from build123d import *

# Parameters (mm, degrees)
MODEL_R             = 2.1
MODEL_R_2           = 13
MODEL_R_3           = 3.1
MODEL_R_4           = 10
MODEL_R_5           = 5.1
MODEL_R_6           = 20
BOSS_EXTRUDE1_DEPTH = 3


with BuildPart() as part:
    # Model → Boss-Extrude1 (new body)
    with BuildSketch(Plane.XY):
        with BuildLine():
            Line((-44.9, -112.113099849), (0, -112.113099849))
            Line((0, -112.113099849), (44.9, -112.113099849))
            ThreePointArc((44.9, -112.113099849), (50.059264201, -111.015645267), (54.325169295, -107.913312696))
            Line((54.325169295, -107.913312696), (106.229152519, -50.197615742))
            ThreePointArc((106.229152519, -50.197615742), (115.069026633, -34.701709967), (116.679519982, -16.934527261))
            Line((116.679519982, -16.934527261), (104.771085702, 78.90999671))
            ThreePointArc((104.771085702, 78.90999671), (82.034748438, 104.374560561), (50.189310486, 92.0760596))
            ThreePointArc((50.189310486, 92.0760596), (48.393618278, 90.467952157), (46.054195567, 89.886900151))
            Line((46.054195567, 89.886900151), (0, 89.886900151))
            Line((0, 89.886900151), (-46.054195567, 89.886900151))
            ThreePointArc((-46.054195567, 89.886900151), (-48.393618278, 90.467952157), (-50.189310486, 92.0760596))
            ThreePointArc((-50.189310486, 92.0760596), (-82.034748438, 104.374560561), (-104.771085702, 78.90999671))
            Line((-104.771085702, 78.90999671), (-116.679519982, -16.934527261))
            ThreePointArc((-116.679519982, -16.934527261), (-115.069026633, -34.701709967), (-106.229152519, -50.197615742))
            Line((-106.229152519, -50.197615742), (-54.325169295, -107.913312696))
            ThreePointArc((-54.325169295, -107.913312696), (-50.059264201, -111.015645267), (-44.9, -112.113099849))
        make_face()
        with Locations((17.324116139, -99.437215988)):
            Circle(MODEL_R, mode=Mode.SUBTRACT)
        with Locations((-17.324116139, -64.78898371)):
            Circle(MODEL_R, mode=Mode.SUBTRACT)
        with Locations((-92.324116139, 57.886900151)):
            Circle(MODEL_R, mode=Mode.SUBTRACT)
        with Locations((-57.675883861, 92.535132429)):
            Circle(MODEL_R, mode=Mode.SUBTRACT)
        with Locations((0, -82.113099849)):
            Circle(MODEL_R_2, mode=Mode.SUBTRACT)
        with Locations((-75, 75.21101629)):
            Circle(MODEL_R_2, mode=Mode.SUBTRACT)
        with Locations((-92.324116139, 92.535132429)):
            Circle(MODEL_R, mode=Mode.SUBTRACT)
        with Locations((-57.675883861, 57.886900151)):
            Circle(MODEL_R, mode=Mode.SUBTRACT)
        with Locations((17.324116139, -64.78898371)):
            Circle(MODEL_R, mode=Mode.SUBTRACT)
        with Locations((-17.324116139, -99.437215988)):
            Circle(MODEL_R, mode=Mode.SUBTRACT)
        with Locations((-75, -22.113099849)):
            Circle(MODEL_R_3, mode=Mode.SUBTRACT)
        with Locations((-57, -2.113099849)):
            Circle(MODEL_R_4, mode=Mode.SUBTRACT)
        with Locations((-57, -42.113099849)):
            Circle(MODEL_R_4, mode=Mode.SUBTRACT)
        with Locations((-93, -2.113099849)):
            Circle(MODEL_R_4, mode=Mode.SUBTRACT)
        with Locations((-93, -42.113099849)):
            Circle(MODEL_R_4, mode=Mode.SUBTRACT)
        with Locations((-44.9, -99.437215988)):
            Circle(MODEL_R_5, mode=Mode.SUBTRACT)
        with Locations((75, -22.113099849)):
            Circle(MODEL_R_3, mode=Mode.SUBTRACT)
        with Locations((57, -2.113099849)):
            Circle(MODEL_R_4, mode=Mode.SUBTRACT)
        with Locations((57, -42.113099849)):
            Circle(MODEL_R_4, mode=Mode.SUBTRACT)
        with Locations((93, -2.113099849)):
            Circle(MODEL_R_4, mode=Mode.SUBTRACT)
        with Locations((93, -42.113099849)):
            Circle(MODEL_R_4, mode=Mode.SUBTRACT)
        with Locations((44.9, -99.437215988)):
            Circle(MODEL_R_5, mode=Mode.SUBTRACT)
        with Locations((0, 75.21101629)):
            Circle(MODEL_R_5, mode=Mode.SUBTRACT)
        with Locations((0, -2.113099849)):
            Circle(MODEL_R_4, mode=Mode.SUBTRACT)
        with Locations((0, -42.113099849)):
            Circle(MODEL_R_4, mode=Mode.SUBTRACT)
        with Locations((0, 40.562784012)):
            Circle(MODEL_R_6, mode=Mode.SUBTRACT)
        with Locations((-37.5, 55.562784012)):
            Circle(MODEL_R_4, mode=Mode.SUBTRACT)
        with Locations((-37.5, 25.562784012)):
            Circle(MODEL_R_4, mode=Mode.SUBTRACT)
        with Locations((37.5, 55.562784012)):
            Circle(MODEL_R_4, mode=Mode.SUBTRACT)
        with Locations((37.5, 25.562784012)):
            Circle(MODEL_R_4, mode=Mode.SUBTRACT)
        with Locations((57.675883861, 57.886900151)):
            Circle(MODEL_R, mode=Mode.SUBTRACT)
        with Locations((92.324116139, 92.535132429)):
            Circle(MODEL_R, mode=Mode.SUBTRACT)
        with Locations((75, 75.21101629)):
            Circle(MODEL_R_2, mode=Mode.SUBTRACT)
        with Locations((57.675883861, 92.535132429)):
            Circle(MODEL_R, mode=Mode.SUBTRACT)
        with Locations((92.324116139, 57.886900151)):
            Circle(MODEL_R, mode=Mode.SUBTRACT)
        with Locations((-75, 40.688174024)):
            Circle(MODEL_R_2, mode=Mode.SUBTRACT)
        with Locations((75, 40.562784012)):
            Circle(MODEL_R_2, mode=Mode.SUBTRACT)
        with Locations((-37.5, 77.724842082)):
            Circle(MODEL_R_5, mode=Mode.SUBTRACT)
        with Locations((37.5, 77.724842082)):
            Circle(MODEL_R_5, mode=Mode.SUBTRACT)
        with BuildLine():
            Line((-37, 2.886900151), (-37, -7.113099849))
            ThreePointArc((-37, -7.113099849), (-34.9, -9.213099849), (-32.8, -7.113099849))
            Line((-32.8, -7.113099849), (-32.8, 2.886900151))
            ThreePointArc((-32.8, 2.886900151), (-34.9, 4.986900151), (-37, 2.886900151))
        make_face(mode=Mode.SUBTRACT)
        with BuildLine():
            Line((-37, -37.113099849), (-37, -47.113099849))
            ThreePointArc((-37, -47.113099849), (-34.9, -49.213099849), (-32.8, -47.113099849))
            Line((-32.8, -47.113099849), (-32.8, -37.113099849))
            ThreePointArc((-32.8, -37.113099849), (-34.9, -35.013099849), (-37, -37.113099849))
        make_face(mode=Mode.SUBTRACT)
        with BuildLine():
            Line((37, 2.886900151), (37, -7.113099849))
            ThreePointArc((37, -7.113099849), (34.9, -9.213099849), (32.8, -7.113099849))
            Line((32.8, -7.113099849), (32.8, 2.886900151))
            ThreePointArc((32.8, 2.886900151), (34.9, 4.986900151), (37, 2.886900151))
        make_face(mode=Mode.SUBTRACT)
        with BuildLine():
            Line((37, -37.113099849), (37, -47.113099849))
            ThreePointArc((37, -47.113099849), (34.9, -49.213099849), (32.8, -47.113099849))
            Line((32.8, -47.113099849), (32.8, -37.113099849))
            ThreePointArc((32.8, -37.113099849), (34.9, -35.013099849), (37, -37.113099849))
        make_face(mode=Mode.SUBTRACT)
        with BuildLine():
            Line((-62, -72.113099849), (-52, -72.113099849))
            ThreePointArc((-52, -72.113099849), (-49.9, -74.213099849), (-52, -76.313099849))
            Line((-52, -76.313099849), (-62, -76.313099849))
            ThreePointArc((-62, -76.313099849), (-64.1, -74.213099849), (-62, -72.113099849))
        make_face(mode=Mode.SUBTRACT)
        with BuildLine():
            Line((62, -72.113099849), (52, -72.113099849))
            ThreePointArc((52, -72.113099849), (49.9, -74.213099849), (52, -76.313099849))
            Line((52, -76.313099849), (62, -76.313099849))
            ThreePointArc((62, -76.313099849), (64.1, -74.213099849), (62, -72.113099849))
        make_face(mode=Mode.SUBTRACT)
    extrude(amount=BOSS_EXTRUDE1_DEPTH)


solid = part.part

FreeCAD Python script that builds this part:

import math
import FreeCAD as App
import Part
import Sketcher
from FreeCAD import Vector

doc = App.newDocument("Part")
params = doc.addObject("Spreadsheet::Sheet", "Params")
for row, (alias, value) in enumerate([
    ("sketch1_diameter", "26 mm"),
    ("sketch1_diameter2", "20 mm"),
    ("sketch1_diameter3", "40 mm"),
    ("sketch1_radius", "42 mm"),
    ("sketch1_radius2", "30 mm"),
    ("pad1_length", "3 mm"),
], start=1):
    params.set(f"A{row}", alias)
    params.set(f"B{row}", "=" + value)
    params.setAlias(f"B{row}", alias)

body = doc.addObject("PartDesign::Body", "Body")

# Sketch on XY plane
sketch1 = body.newObject("Sketcher::SketchObject", "Sketch")
sketch1.AttachmentSupport = (doc.getObject("XY_Plane"), [""])
sketch1.MapMode = "FlatFace"
sketch1.addGeometry(Part.LineSegment(Vector(-44.9, -112.1, 0), Vector(44.9, -112.1, 0)), False)
sketch1.addGeometry(Part.ArcOfCircle(Part.Circle(Vector(44.9, -99.4, 0), Vector(0, 0, 1), 12.7), math.radians(-90), math.radians(-42)), False)
sketch1.addGeometry(Part.LineSegment(Vector(54.3, -107.9, 0), Vector(106.2, -50.2, 0)), False)
sketch1.addGeometry(Part.ArcOfCircle(Part.Circle(Vector(75, -22.1, 0), Vector(0, 0, 1), 42), math.radians(-42), math.radians(7)), False)
sketch1.addGeometry(Part.LineSegment(Vector(116.7, -16.9, 0), Vector(104.8, 78.9, 0)), False)
sketch1.addGeometry(Part.ArcOfCircle(Part.Circle(Vector(75, 75.2, 0), Vector(0, 0, 1), 30), math.radians(7), math.radians(146)), False)
sketch1.addGeometry(Part.ArcOfCircle(Part.Circle(Vector(46.1, 94.9, 0), Vector(0, 0, 1), 5), math.radians(-90), math.radians(-34)), False)
sketch1.addGeometry(Part.LineSegment(Vector(46.1, 89.9, 0), Vector(-46.1, 89.9, 0)), False)
sketch1.addGeometry(Part.ArcOfCircle(Part.Circle(Vector(-46.1, 94.9, 0), Vector(0, 0, 1), 5), math.radians(-146), math.radians(-90)), False)
sketch1.addGeometry(Part.ArcOfCircle(Part.Circle(Vector(-75, 75.2, 0), Vector(0, 0, 1), 30), math.radians(34), math.radians(173)), False)
sketch1.addGeometry(Part.LineSegment(Vector(-104.8, 78.9, 0), Vector(-116.7, -16.9, 0)), False)
sketch1.addGeometry(Part.ArcOfCircle(Part.Circle(Vector(-75, -22.1, 0), Vector(0, 0, 1), 42), math.radians(173), math.radians(222)), False)
sketch1.addGeometry(Part.LineSegment(Vector(-106.2, -50.2, 0), Vector(-54.3, -107.9, 0)), False)
sketch1.addGeometry(Part.ArcOfCircle(Part.Circle(Vector(-44.9, -99.4, 0), Vector(0, 0, 1), 12.7), math.radians(-138), math.radians(-90)), False)
sketch1.addGeometry(Part.ArcOfCircle(Part.Circle(Vector(-62, -74.2, 0), Vector(0, 0, 1), 2.1), math.radians(90), math.radians(270)), False)
sketch1.addGeometry(Part.LineSegment(Vector(-62, -72.1, 0), Vector(-52, -72.1, 0)), False)
sketch1.addGeometry(Part.ArcOfCircle(Part.Circle(Vector(-52, -74.2, 0), Vector(0, 0, 1), 2.1), math.radians(-90), math.radians(90)), False)
sketch1.addGeometry(Part.LineSegment(Vector(-52, -76.3, 0), Vector(-62, -76.3, 0)), False)
sketch1.addGeometry(Part.Circle(Vector(-44.9, -99.4, 0), Vector(0, 0, 1), 5.1), False)
sketch1.addGeometry(Part.Circle(Vector(-17.3, -99.4, 0), Vector(0, 0, 1), 2.1), False)
sketch1.addGeometry(Part.Circle(Vector(0, -82.1, 0), Vector(0, 0, 1), 13), False)
sketch1.addGeometry(Part.Circle(Vector(-17.3, -64.8, 0), Vector(0, 0, 1), 2.1), False)
sketch1.addGeometry(Part.Circle(Vector(-93, -42.1, 0), Vector(0, 0, 1), 10), False)
sketch1.addGeometry(Part.Circle(Vector(-57, -42.1, 0), Vector(0, 0, 1), 10), False)
sketch1.addGeometry(Part.Circle(Vector(-75, -22.1, 0), Vector(0, 0, 1), 3.1), False)
sketch1.addGeometry(Part.LineSegment(Vector(-37, -47.1, 0), Vector(-37, -37.1, 0)), False)
sketch1.addGeometry(Part.ArcOfCircle(Part.Circle(Vector(-34.9, -37.1, 0), Vector(0, 0, 1), 2.1), math.radians(0), math.radians(180)), False)
sketch1.addGeometry(Part.LineSegment(Vector(-32.8, -37.1, 0), Vector(-32.8, -47.1, 0)), False)
sketch1.addGeometry(Part.ArcOfCircle(Part.Circle(Vector(-34.9, -47.1, 0), Vector(0, 0, 1), 2.1), math.radians(180), math.radians(360)), False)
sketch1.addGeometry(Part.Circle(Vector(0, -42.1, 0), Vector(0, 0, 1), 10), False)
sketch1.addGeometry(Part.Circle(Vector(17.3, -99.4, 0), Vector(0, 0, 1), 2.1), False)
sketch1.addGeometry(Part.Circle(Vector(44.9, -99.4, 0), Vector(0, 0, 1), 5.1), False)
sketch1.addGeometry(Part.Circle(Vector(17.3, -64.8, 0), Vector(0, 0, 1), 2.1), False)
sketch1.addGeometry(Part.LineSegment(Vector(52, -72.1, 0), Vector(62, -72.1, 0)), False)
sketch1.addGeometry(Part.ArcOfCircle(Part.Circle(Vector(62, -74.2, 0), Vector(0, 0, 1), 2.1), math.radians(-90), math.radians(90)), False)
sketch1.addGeometry(Part.LineSegment(Vector(62, -76.3, 0), Vector(52, -76.3, 0)), False)
sketch1.addGeometry(Part.ArcOfCircle(Part.Circle(Vector(52, -74.2, 0), Vector(0, 0, 1), 2.1), math.radians(90), math.radians(270)), False)
sketch1.addGeometry(Part.ArcOfCircle(Part.Circle(Vector(34.9, -37.1, 0), Vector(0, 0, 1), 2.1), math.radians(0), math.radians(180)), False)
sketch1.addGeometry(Part.LineSegment(Vector(37, -37.1, 0), Vector(37, -47.1, 0)), False)
sketch1.addGeometry(Part.ArcOfCircle(Part.Circle(Vector(34.9, -47.1, 0), Vector(0, 0, 1), 2.1), math.radians(180), math.radians(360)), False)
sketch1.addGeometry(Part.LineSegment(Vector(32.8, -47.1, 0), Vector(32.8, -37.1, 0)), False)
sketch1.addGeometry(Part.Circle(Vector(57, -42.1, 0), Vector(0, 0, 1), 10), False)
sketch1.addGeometry(Part.Circle(Vector(93, -42.1, 0), Vector(0, 0, 1), 10), False)
sketch1.addGeometry(Part.Circle(Vector(75, -22.1, 0), Vector(0, 0, 1), 3.1), False)
sketch1.addGeometry(Part.Circle(Vector(-93, -2.1, 0), Vector(0, 0, 1), 10), False)
sketch1.addGeometry(Part.Circle(Vector(-57, -2.1, 0), Vector(0, 0, 1), 10), False)
sketch1.addGeometry(Part.Circle(Vector(-75, 40.7, 0), Vector(0, 0, 1), 13), False)
sketch1.addGeometry(Part.LineSegment(Vector(-37, -7.1, 0), Vector(-37, 2.9, 0)), False)
sketch1.addGeometry(Part.ArcOfCircle(Part.Circle(Vector(-34.9, 2.9, 0), Vector(0, 0, 1), 2.1), math.radians(0), math.radians(180)), False)
sketch1.addGeometry(Part.LineSegment(Vector(-32.8, 2.9, 0), Vector(-32.8, -7.1, 0)), False)
sketch1.addGeometry(Part.ArcOfCircle(Part.Circle(Vector(-34.9, -7.1, 0), Vector(0, 0, 1), 2.1), math.radians(180), math.radians(360)), False)
sketch1.addGeometry(Part.Circle(Vector(0, -2.1, 0), Vector(0, 0, 1), 10), False)
sketch1.addGeometry(Part.Circle(Vector(-37.5, 25.6, 0), Vector(0, 0, 1), 10), False)
sketch1.addGeometry(Part.Circle(Vector(0, 40.6, 0), Vector(0, 0, 1), 20), False)
sketch1.addGeometry(Part.Circle(Vector(-92.3, 57.9, 0), Vector(0, 0, 1), 2.1), False)
sketch1.addGeometry(Part.Circle(Vector(-57.7, 57.9, 0), Vector(0, 0, 1), 2.1), False)
sketch1.addGeometry(Part.Circle(Vector(-92.3, 92.5, 0), Vector(0, 0, 1), 2.1), False)
sketch1.addGeometry(Part.Circle(Vector(-75, 75.2, 0), Vector(0, 0, 1), 13), False)
sketch1.addGeometry(Part.Circle(Vector(-57.7, 92.5, 0), Vector(0, 0, 1), 2.1), False)
sketch1.addGeometry(Part.Circle(Vector(-37.5, 55.6, 0), Vector(0, 0, 1), 10), False)
sketch1.addGeometry(Part.Circle(Vector(-37.5, 77.7, 0), Vector(0, 0, 1), 5.1), False)
sketch1.addGeometry(Part.Circle(Vector(0, 75.2, 0), Vector(0, 0, 1), 5.1), False)
sketch1.addGeometry(Part.ArcOfCircle(Part.Circle(Vector(34.9, 2.9, 0), Vector(0, 0, 1), 2.1), math.radians(0), math.radians(180)), False)
sketch1.addGeometry(Part.LineSegment(Vector(37, 2.9, 0), Vector(37, -7.1, 0)), False)
sketch1.addGeometry(Part.ArcOfCircle(Part.Circle(Vector(34.9, -7.1, 0), Vector(0, 0, 1), 2.1), math.radians(180), math.radians(360)), False)
sketch1.addGeometry(Part.LineSegment(Vector(32.8, -7.1, 0), Vector(32.8, 2.9, 0)), False)
sketch1.addGeometry(Part.Circle(Vector(37.5, 25.6, 0), Vector(0, 0, 1), 10), False)
sketch1.addGeometry(Part.Circle(Vector(57, -2.1, 0), Vector(0, 0, 1), 10), False)
sketch1.addGeometry(Part.Circle(Vector(93, -2.1, 0), Vector(0, 0, 1), 10), False)
sketch1.addGeometry(Part.Circle(Vector(75, 40.6, 0), Vector(0, 0, 1), 13), False)
sketch1.addGeometry(Part.Circle(Vector(37.5, 55.6, 0), Vector(0, 0, 1), 10), False)
sketch1.addGeometry(Part.Circle(Vector(37.5, 77.7, 0), Vector(0, 0, 1), 5.1), False)
sketch1.addGeometry(Part.Circle(Vector(57.7, 57.9, 0), Vector(0, 0, 1), 2.1), False)
sketch1.addGeometry(Part.Circle(Vector(92.3, 57.9, 0), Vector(0, 0, 1), 2.1), False)
sketch1.addGeometry(Part.Circle(Vector(75, 75.2, 0), Vector(0, 0, 1), 13), False)
sketch1.addGeometry(Part.Circle(Vector(57.7, 92.5, 0), Vector(0, 0, 1), 2.1), False)
sketch1.addGeometry(Part.Circle(Vector(92.3, 92.5, 0), Vector(0, 0, 1), 2.1), False)
sketch1.addConstraint(Sketcher.Constraint("Tangent", 0, 2, 1, 1))
sketch1.addConstraint(Sketcher.Constraint("Tangent", 1, 2, 2, 1))
sketch1.addConstraint(Sketcher.Constraint("Tangent", 2, 2, 3, 1))
sketch1.addConstraint(Sketcher.Constraint("Tangent", 3, 2, 4, 1))
sketch1.addConstraint(Sketcher.Constraint("Tangent", 4, 2, 5, 1))
sketch1.addConstraint(Sketcher.Constraint("Tangent", 5, 2, 6, 2))
sketch1.addConstraint(Sketcher.Constraint("Tangent", 6, 1, 7, 1))
sketch1.addConstraint(Sketcher.Constraint("Tangent", 7, 2, 8, 2))
sketch1.addConstraint(Sketcher.Constraint("Tangent", 8, 1, 9, 1))
sketch1.addConstraint(Sketcher.Constraint("Tangent", 9, 2, 10, 1))
sketch1.addConstraint(Sketcher.Constraint("Tangent", 10, 2, 11, 1))
sketch1.addConstraint(Sketcher.Constraint("Tangent", 11, 2, 12, 1))
sketch1.addConstraint(Sketcher.Constraint("Tangent", 12, 2, 13, 1))
sketch1.addConstraint(Sketcher.Constraint("Tangent", 13, 2, 0, 1))
sketch1.addConstraint(Sketcher.Constraint("Tangent", 14, 1, 15, 1))
sketch1.addConstraint(Sketcher.Constraint("Tangent", 15, 2, 16, 2))
sketch1.addConstraint(Sketcher.Constraint("Tangent", 16, 1, 17, 1))
sketch1.addConstraint(Sketcher.Constraint("Tangent", 17, 2, 14, 2))
sketch1.addConstraint(Sketcher.Constraint("Tangent", 25, 2, 26, 2))
sketch1.addConstraint(Sketcher.Constraint("Tangent", 26, 1, 27, 1))
sketch1.addConstraint(Sketcher.Constraint("Tangent", 27, 2, 28, 2))
sketch1.addConstraint(Sketcher.Constraint("Tangent", 28, 1, 25, 1))
sketch1.addConstraint(Sketcher.Constraint("Tangent", 33, 2, 34, 2))
sketch1.addConstraint(Sketcher.Constraint("Tangent", 34, 1, 35, 1))
sketch1.addConstraint(Sketcher.Constraint("Tangent", 35, 2, 36, 2))
sketch1.addConstraint(Sketcher.Constraint("Tangent", 36, 1, 33, 1))
sketch1.addConstraint(Sketcher.Constraint("Tangent", 37, 1, 38, 1))
sketch1.addConstraint(Sketcher.Constraint("Tangent", 38, 2, 39, 2))
sketch1.addConstraint(Sketcher.Constraint("Tangent", 39, 1, 40, 1))
sketch1.addConstraint(Sketcher.Constraint("Tangent", 40, 2, 37, 2))
sketch1.addConstraint(Sketcher.Constraint("Tangent", 47, 2, 48, 2))
sketch1.addConstraint(Sketcher.Constraint("Tangent", 48, 1, 49, 1))
sketch1.addConstraint(Sketcher.Constraint("Tangent", 49, 2, 50, 2))
sketch1.addConstraint(Sketcher.Constraint("Tangent", 50, 1, 47, 1))
sketch1.addConstraint(Sketcher.Constraint("Tangent", 62, 1, 63, 1))
sketch1.addConstraint(Sketcher.Constraint("Tangent", 63, 2, 64, 2))
sketch1.addConstraint(Sketcher.Constraint("Tangent", 64, 1, 65, 1))
sketch1.addConstraint(Sketcher.Constraint("Tangent", 65, 2, 62, 2))
sketch1.addConstraint(Sketcher.Constraint("Horizontal", 0))
sketch1.addConstraint(Sketcher.Constraint("Horizontal", 7))
sketch1.addConstraint(Sketcher.Constraint("Horizontal", 15))
sketch1.addConstraint(Sketcher.Constraint("Horizontal", 17))
sketch1.addConstraint(Sketcher.Constraint("Vertical", 25))
sketch1.addConstraint(Sketcher.Constraint("Vertical", 27))
sketch1.addConstraint(Sketcher.Constraint("Horizontal", 33))
sketch1.addConstraint(Sketcher.Constraint("Horizontal", 35))
sketch1.addConstraint(Sketcher.Constraint("Vertical", 38))
sketch1.addConstraint(Sketcher.Constraint("Vertical", 40))
sketch1.addConstraint(Sketcher.Constraint("Vertical", 47))
sketch1.addConstraint(Sketcher.Constraint("Vertical", 49))
sketch1.addConstraint(Sketcher.Constraint("Vertical", 63))
sketch1.addConstraint(Sketcher.Constraint("Vertical", 65))
sketch1.addConstraint(Sketcher.Constraint("Coincident", 18, 3, 13, 3))
sketch1.addConstraint(Sketcher.Constraint("Coincident", 24, 3, 11, 3))
sketch1.addConstraint(Sketcher.Constraint("Coincident", 31, 3, 1, 3))
sketch1.addConstraint(Sketcher.Constraint("Coincident", 43, 3, 3, 3))
sketch1.addConstraint(Sketcher.Constraint("Coincident", 57, 3, 9, 3))
sketch1.addConstraint(Sketcher.Constraint("Coincident", 74, 3, 5, 3))
sketch1.addConstraint(Sketcher.Constraint("Equal", 6, 8))
sketch1.addConstraint(Sketcher.Constraint("Equal", 5, 9))
sketch1.addConstraint(Sketcher.Constraint("Equal", 3, 11))
sketch1.addConstraint(Sketcher.Constraint("Equal", 1, 13))
sketch1.addConstraint(Sketcher.Constraint("Equal", 16, 19))
sketch1.addConstraint(Sketcher.Constraint("Equal", 19, 21))
sketch1.addConstraint(Sketcher.Constraint("Equal", 22, 23))
sketch1.addConstraint(Sketcher.Constraint("Equal", 21, 26))
sketch1.addConstraint(Sketcher.Constraint("Equal", 23, 29))
sketch1.addConstraint(Sketcher.Constraint("Equal", 28, 30))
sketch1.addConstraint(Sketcher.Constraint("Equal", 18, 31))
sketch1.addConstraint(Sketcher.Constraint("Equal", 30, 32))
sketch1.addConstraint(Sketcher.Constraint("Equal", 32, 34))
sketch1.addConstraint(Sketcher.Constraint("Equal", 36, 37))
sketch1.addConstraint(Sketcher.Constraint("Equal", 29, 41))
sketch1.addConstraint(Sketcher.Constraint("Equal", 41, 42))
sketch1.addConstraint(Sketcher.Constraint("Equal", 24, 43))
sketch1.addConstraint(Sketcher.Constraint("Equal", 42, 44))
sketch1.addConstraint(Sketcher.Constraint("Equal", 44, 45))
sketch1.addConstraint(Sketcher.Constraint("Equal", 20, 46))
sketch1.addConstraint(Sketcher.Constraint("Equal", 39, 48))
sketch1.addConstraint(Sketcher.Constraint("Equal", 45, 51))
sketch1.addConstraint(Sketcher.Constraint("Equal", 51, 52))
sketch1.addConstraint(Sketcher.Constraint("Equal", 50, 54))
sketch1.addConstraint(Sketcher.Constraint("Equal", 54, 55))
sketch1.addConstraint(Sketcher.Constraint("Equal", 55, 56))
sketch1.addConstraint(Sketcher.Constraint("Equal", 46, 57))
sketch1.addConstraint(Sketcher.Constraint("Equal", 56, 58))
sketch1.addConstraint(Sketcher.Constraint("Equal", 52, 59))
sketch1.addConstraint(Sketcher.Constraint("Equal", 31, 60))
sketch1.addConstraint(Sketcher.Constraint("Equal", 60, 61))
sketch1.addConstraint(Sketcher.Constraint("Equal", 58, 62))
sketch1.addConstraint(Sketcher.Constraint("Equal", 59, 66))
sketch1.addConstraint(Sketcher.Constraint("Equal", 66, 67))
sketch1.addConstraint(Sketcher.Constraint("Equal", 67, 68))
sketch1.addConstraint(Sketcher.Constraint("Equal", 57, 69))
sketch1.addConstraint(Sketcher.Constraint("Equal", 68, 70))
sketch1.addConstraint(Sketcher.Constraint("Equal", 61, 71))
sketch1.addConstraint(Sketcher.Constraint("Equal", 64, 72))
sketch1.addConstraint(Sketcher.Constraint("Equal", 72, 73))
sketch1.addConstraint(Sketcher.Constraint("Equal", 69, 74))
sketch1.addConstraint(Sketcher.Constraint("Equal", 73, 75))
sketch1.addConstraint(Sketcher.Constraint("Equal", 75, 76))
sketch1.addConstraint(Sketcher.Constraint("Symmetric", 5, 3, 9, 3, -2))
sketch1.addConstraint(Sketcher.Constraint("Symmetric", 3, 3, 11, 3, -2))
sketch1.addConstraint(Sketcher.Constraint("Symmetric", 19, 3, 30, 3, -2))
sketch1.addConstraint(Sketcher.Constraint("Symmetric", 21, 3, 32, 3, -2))
sketch1.addConstraint(Sketcher.Constraint("Symmetric", 14, 3, 34, 3, -2))
sketch1.addConstraint(Sketcher.Constraint("Symmetric", 26, 3, 37, 3, -2))
sketch1.addConstraint(Sketcher.Constraint("Symmetric", 23, 3, 41, 3, -2))
sketch1.addConstraint(Sketcher.Constraint("Symmetric", 22, 3, 42, 3, -2))
sketch1.addConstraint(Sketcher.Constraint("Symmetric", 48, 3, 62, 3, -2))
sketch1.addConstraint(Sketcher.Constraint("Symmetric", 52, 3, 66, 3, -2))
sketch1.addConstraint(Sketcher.Constraint("Symmetric", 45, 3, 67, 3, -2))
sketch1.addConstraint(Sketcher.Constraint("Symmetric", 44, 3, 68, 3, -2))
sketch1.addConstraint(Sketcher.Constraint("Symmetric", 59, 3, 70, 3, -2))
sketch1.addConstraint(Sketcher.Constraint("Symmetric", 60, 3, 71, 3, -2))
sketch1.addConstraint(Sketcher.Constraint("Symmetric", 55, 3, 72, 3, -2))
sketch1.addConstraint(Sketcher.Constraint("Symmetric", 54, 3, 73, 3, -2))
sketch1.addConstraint(Sketcher.Constraint("Symmetric", 58, 3, 75, 3, -2))
sketch1.addConstraint(Sketcher.Constraint("Symmetric", 56, 3, 76, 3, -2))
sketch1.addConstraint(Sketcher.Constraint("PointOnObject", 20, 3, -2))
sketch1.addConstraint(Sketcher.Constraint("PointOnObject", 29, 3, -2))
sketch1.addConstraint(Sketcher.Constraint("PointOnObject", 51, 3, -2))
sketch1.addConstraint(Sketcher.Constraint("PointOnObject", 53, 3, -2))
sketch1.addConstraint(Sketcher.Constraint("PointOnObject", 61, 3, -2))
sketch1.addConstraint(Sketcher.Constraint("Horizontal", 18, 3, 19, 3))
sketch1.addConstraint(Sketcher.Constraint("Horizontal", 22, 3, 23, 3))
sketch1.addConstraint(Sketcher.Constraint("Horizontal", 23, 3, 29, 3))
sketch1.addConstraint(Sketcher.Constraint("Horizontal", 28, 3, 39, 3))
sketch1.addConstraint(Sketcher.Constraint("Horizontal", 44, 3, 45, 3))
sketch1.addConstraint(Sketcher.Constraint("Horizontal", 45, 3, 51, 3))
sketch1.addConstraint(Sketcher.Constraint("Horizontal", 54, 3, 55, 3))
sketch1.addConstraint(Sketcher.Constraint("Horizontal", 56, 3, 58, 3))
sketch1.addConstraint(Sketcher.Constraint("Horizontal", 57, 3, 61, 3))
sketch1.addConstraint(Sketcher.Constraint("Horizontal", 50, 3, 64, 3))
sketch1.addConstraint(Sketcher.Constraint("Horizontal", 53, 3, 69, 3))
sketch1.addConstraint(Sketcher.Constraint("Horizontal", 2, 2, 11, 2))
sketch1.addConstraint(Sketcher.Constraint("Vertical", 3, 3, 5, 3))
sketch1.addConstraint(Sketcher.Constraint("Vertical", 19, 3, 21, 3))
sketch1.addConstraint(Sketcher.Constraint("Vertical", 22, 3, 44, 3))
sketch1.addConstraint(Sketcher.Constraint("Vertical", 23, 3, 45, 3))
sketch1.addConstraint(Sketcher.Constraint("Vertical", 24, 3, 46, 3))
sketch1.addConstraint(Sketcher.Constraint("Vertical", 28, 3, 48, 3))
sketch1.addConstraint(Sketcher.Constraint("Vertical", 54, 3, 56, 3))
sketch1.addConstraint(Sketcher.Constraint("Vertical", 55, 3, 58, 3))
sketch1.addConstraint(Sketcher.Constraint("Vertical", 52, 3, 59, 3))
sketch1.addConstraint(Sketcher.Constraint("Vertical", 59, 3, 60, 3))
sketch1.addConstraint(Sketcher.Constraint("Vertical", 43, 3, 69, 3))
sketch1.addConstraint(Sketcher.Constraint("Equal", 17, 33))
sketch1.addConstraint(Sketcher.Constraint("Equal", 35, 25))
sketch1.addConstraint(Sketcher.Constraint("Equal", 40, 47))
sketch1.addConstraint(Sketcher.Constraint("Diameter", 20, 26.0))
sketch1.addConstraint(Sketcher.Constraint("Diameter", 22, 20.0))
sketch1.addConstraint(Sketcher.Constraint("Diameter", 53, 40.0))
sketch1.addConstraint(Sketcher.Constraint("Radius", 3, 42.0))
sketch1.addConstraint(Sketcher.Constraint("Radius", 5, 30.0))
sketch1.addConstraint(Sketcher.Constraint("Radius", 6, 5.0))
sketch1.addConstraint(Sketcher.Constraint("Diameter", 18, 10.2))
sketch1.addConstraint(Sketcher.Constraint("Diameter", 19, 4.2))
sketch1.addConstraint(Sketcher.Constraint("Diameter", 24, 6.2))
sketch1.addConstraint(Sketcher.Constraint("DistanceX", 15, 1, 15, 2, 10.0))
sketch1.addConstraint(Sketcher.Constraint("DistanceX", 0, 1, 0, 2, 89.8))
sketch1.addConstraint(Sketcher.Constraint("DistanceX", -1, 1, 3, 3, 75.0))
sketch1.addConstraint(Sketcher.Constraint("DistanceX", 14, 3, -1, 1, 62.0))
sketch1.addConstraint(Sketcher.Constraint("DistanceX", 22, 3, -1, 1, 93.0))
sketch1.addConstraint(Sketcher.Constraint("DistanceX", 23, 3, -1, 1, 57.0))
sketch1.addConstraint(Sketcher.Constraint("DistanceX", 25, 2, -1, 1, 37.0))
sketch1.addConstraint(Sketcher.Constraint("DistanceX", 52, 3, -1, 1, 37.5))
sketch1.addConstraint(Sketcher.Constraint("Radius", 1, 12.675884))
sketch1.addConstraint(Sketcher.Constraint("DistanceX", 7, 2, 7, 1, 92.108391))
sketch1.addConstraint(Sketcher.Constraint("DistanceY", 3, 3, -1, 1, 22.1131))
sketch1.addConstraint(Sketcher.Constraint("DistanceY", -1, 1, 6, 3, 94.8869))
sketch1.addConstraint(Sketcher.Constraint("DistanceY", 14, 3, -1, 1, 74.2131))
sketch1.addConstraint(Sketcher.Constraint("DistanceY", 20, 3, -1, 1, 82.1131))
sketch1.addConstraint(Sketcher.Constraint("DistanceY", 22, 3, -1, 1, 42.1131))
sketch1.addConstraint(Sketcher.Constraint("DistanceY", 26, 3, -1, 1, 37.1131))
sketch1.addConstraint(Sketcher.Constraint("DistanceY", 44, 3, -1, 1, 2.1131))
sketch1.addConstraint(Sketcher.Constraint("DistanceY", -1, 1, 48, 3, 2.8869))
sketch1.addConstraint(Sketcher.Constraint("DistanceY", -1, 1, 54, 3, 57.8869))
sketch1.addConstraint(Sketcher.Constraint("DistanceY", 0, 2, -1, 1, 112.1131))
sketch1.addConstraint(Sketcher.Constraint("DistanceX", 19, 3, -1, 1, 17.324116))
sketch1.addConstraint(Sketcher.Constraint("DistanceY", 21, 3, -1, 1, 64.788984))
sketch1.addConstraint(Sketcher.Constraint("DistanceY", -1, 1, 46, 3, 40.688174))
sketch1.addConstraint(Sketcher.Constraint("DistanceY", -1, 1, 52, 3, 25.562784))
sketch1.addConstraint(Sketcher.Constraint("DistanceY", -1, 1, 53, 3, 40.562784))
sketch1.addConstraint(Sketcher.Constraint("DistanceX", 54, 3, -1, 1, 92.324116))
sketch1.addConstraint(Sketcher.Constraint("DistanceX", 55, 3, -1, 1, 57.675884))
sketch1.addConstraint(Sketcher.Constraint("DistanceY", -1, 1, 56, 3, 92.535132))
sketch1.addConstraint(Sketcher.Constraint("DistanceY", -1, 1, 59, 3, 55.562784))
sketch1.addConstraint(Sketcher.Constraint("DistanceY", -1, 1, 60, 3, 77.724842))
sketch1.setExpression("Constraints[150]", "Params.sketch1_diameter")
sketch1.setExpression("Constraints[151]", "Params.sketch1_diameter2")
sketch1.setExpression("Constraints[152]", "Params.sketch1_diameter3")
sketch1.setExpression("Constraints[153]", "Params.sketch1_radius")
sketch1.setExpression("Constraints[154]", "Params.sketch1_radius2")
pad1 = body.newObject("PartDesign::Pad", "Pad")
pad1.Profile = sketch1
pad1.setExpression("Length", "Params.pad1_length")

doc.recompute()
